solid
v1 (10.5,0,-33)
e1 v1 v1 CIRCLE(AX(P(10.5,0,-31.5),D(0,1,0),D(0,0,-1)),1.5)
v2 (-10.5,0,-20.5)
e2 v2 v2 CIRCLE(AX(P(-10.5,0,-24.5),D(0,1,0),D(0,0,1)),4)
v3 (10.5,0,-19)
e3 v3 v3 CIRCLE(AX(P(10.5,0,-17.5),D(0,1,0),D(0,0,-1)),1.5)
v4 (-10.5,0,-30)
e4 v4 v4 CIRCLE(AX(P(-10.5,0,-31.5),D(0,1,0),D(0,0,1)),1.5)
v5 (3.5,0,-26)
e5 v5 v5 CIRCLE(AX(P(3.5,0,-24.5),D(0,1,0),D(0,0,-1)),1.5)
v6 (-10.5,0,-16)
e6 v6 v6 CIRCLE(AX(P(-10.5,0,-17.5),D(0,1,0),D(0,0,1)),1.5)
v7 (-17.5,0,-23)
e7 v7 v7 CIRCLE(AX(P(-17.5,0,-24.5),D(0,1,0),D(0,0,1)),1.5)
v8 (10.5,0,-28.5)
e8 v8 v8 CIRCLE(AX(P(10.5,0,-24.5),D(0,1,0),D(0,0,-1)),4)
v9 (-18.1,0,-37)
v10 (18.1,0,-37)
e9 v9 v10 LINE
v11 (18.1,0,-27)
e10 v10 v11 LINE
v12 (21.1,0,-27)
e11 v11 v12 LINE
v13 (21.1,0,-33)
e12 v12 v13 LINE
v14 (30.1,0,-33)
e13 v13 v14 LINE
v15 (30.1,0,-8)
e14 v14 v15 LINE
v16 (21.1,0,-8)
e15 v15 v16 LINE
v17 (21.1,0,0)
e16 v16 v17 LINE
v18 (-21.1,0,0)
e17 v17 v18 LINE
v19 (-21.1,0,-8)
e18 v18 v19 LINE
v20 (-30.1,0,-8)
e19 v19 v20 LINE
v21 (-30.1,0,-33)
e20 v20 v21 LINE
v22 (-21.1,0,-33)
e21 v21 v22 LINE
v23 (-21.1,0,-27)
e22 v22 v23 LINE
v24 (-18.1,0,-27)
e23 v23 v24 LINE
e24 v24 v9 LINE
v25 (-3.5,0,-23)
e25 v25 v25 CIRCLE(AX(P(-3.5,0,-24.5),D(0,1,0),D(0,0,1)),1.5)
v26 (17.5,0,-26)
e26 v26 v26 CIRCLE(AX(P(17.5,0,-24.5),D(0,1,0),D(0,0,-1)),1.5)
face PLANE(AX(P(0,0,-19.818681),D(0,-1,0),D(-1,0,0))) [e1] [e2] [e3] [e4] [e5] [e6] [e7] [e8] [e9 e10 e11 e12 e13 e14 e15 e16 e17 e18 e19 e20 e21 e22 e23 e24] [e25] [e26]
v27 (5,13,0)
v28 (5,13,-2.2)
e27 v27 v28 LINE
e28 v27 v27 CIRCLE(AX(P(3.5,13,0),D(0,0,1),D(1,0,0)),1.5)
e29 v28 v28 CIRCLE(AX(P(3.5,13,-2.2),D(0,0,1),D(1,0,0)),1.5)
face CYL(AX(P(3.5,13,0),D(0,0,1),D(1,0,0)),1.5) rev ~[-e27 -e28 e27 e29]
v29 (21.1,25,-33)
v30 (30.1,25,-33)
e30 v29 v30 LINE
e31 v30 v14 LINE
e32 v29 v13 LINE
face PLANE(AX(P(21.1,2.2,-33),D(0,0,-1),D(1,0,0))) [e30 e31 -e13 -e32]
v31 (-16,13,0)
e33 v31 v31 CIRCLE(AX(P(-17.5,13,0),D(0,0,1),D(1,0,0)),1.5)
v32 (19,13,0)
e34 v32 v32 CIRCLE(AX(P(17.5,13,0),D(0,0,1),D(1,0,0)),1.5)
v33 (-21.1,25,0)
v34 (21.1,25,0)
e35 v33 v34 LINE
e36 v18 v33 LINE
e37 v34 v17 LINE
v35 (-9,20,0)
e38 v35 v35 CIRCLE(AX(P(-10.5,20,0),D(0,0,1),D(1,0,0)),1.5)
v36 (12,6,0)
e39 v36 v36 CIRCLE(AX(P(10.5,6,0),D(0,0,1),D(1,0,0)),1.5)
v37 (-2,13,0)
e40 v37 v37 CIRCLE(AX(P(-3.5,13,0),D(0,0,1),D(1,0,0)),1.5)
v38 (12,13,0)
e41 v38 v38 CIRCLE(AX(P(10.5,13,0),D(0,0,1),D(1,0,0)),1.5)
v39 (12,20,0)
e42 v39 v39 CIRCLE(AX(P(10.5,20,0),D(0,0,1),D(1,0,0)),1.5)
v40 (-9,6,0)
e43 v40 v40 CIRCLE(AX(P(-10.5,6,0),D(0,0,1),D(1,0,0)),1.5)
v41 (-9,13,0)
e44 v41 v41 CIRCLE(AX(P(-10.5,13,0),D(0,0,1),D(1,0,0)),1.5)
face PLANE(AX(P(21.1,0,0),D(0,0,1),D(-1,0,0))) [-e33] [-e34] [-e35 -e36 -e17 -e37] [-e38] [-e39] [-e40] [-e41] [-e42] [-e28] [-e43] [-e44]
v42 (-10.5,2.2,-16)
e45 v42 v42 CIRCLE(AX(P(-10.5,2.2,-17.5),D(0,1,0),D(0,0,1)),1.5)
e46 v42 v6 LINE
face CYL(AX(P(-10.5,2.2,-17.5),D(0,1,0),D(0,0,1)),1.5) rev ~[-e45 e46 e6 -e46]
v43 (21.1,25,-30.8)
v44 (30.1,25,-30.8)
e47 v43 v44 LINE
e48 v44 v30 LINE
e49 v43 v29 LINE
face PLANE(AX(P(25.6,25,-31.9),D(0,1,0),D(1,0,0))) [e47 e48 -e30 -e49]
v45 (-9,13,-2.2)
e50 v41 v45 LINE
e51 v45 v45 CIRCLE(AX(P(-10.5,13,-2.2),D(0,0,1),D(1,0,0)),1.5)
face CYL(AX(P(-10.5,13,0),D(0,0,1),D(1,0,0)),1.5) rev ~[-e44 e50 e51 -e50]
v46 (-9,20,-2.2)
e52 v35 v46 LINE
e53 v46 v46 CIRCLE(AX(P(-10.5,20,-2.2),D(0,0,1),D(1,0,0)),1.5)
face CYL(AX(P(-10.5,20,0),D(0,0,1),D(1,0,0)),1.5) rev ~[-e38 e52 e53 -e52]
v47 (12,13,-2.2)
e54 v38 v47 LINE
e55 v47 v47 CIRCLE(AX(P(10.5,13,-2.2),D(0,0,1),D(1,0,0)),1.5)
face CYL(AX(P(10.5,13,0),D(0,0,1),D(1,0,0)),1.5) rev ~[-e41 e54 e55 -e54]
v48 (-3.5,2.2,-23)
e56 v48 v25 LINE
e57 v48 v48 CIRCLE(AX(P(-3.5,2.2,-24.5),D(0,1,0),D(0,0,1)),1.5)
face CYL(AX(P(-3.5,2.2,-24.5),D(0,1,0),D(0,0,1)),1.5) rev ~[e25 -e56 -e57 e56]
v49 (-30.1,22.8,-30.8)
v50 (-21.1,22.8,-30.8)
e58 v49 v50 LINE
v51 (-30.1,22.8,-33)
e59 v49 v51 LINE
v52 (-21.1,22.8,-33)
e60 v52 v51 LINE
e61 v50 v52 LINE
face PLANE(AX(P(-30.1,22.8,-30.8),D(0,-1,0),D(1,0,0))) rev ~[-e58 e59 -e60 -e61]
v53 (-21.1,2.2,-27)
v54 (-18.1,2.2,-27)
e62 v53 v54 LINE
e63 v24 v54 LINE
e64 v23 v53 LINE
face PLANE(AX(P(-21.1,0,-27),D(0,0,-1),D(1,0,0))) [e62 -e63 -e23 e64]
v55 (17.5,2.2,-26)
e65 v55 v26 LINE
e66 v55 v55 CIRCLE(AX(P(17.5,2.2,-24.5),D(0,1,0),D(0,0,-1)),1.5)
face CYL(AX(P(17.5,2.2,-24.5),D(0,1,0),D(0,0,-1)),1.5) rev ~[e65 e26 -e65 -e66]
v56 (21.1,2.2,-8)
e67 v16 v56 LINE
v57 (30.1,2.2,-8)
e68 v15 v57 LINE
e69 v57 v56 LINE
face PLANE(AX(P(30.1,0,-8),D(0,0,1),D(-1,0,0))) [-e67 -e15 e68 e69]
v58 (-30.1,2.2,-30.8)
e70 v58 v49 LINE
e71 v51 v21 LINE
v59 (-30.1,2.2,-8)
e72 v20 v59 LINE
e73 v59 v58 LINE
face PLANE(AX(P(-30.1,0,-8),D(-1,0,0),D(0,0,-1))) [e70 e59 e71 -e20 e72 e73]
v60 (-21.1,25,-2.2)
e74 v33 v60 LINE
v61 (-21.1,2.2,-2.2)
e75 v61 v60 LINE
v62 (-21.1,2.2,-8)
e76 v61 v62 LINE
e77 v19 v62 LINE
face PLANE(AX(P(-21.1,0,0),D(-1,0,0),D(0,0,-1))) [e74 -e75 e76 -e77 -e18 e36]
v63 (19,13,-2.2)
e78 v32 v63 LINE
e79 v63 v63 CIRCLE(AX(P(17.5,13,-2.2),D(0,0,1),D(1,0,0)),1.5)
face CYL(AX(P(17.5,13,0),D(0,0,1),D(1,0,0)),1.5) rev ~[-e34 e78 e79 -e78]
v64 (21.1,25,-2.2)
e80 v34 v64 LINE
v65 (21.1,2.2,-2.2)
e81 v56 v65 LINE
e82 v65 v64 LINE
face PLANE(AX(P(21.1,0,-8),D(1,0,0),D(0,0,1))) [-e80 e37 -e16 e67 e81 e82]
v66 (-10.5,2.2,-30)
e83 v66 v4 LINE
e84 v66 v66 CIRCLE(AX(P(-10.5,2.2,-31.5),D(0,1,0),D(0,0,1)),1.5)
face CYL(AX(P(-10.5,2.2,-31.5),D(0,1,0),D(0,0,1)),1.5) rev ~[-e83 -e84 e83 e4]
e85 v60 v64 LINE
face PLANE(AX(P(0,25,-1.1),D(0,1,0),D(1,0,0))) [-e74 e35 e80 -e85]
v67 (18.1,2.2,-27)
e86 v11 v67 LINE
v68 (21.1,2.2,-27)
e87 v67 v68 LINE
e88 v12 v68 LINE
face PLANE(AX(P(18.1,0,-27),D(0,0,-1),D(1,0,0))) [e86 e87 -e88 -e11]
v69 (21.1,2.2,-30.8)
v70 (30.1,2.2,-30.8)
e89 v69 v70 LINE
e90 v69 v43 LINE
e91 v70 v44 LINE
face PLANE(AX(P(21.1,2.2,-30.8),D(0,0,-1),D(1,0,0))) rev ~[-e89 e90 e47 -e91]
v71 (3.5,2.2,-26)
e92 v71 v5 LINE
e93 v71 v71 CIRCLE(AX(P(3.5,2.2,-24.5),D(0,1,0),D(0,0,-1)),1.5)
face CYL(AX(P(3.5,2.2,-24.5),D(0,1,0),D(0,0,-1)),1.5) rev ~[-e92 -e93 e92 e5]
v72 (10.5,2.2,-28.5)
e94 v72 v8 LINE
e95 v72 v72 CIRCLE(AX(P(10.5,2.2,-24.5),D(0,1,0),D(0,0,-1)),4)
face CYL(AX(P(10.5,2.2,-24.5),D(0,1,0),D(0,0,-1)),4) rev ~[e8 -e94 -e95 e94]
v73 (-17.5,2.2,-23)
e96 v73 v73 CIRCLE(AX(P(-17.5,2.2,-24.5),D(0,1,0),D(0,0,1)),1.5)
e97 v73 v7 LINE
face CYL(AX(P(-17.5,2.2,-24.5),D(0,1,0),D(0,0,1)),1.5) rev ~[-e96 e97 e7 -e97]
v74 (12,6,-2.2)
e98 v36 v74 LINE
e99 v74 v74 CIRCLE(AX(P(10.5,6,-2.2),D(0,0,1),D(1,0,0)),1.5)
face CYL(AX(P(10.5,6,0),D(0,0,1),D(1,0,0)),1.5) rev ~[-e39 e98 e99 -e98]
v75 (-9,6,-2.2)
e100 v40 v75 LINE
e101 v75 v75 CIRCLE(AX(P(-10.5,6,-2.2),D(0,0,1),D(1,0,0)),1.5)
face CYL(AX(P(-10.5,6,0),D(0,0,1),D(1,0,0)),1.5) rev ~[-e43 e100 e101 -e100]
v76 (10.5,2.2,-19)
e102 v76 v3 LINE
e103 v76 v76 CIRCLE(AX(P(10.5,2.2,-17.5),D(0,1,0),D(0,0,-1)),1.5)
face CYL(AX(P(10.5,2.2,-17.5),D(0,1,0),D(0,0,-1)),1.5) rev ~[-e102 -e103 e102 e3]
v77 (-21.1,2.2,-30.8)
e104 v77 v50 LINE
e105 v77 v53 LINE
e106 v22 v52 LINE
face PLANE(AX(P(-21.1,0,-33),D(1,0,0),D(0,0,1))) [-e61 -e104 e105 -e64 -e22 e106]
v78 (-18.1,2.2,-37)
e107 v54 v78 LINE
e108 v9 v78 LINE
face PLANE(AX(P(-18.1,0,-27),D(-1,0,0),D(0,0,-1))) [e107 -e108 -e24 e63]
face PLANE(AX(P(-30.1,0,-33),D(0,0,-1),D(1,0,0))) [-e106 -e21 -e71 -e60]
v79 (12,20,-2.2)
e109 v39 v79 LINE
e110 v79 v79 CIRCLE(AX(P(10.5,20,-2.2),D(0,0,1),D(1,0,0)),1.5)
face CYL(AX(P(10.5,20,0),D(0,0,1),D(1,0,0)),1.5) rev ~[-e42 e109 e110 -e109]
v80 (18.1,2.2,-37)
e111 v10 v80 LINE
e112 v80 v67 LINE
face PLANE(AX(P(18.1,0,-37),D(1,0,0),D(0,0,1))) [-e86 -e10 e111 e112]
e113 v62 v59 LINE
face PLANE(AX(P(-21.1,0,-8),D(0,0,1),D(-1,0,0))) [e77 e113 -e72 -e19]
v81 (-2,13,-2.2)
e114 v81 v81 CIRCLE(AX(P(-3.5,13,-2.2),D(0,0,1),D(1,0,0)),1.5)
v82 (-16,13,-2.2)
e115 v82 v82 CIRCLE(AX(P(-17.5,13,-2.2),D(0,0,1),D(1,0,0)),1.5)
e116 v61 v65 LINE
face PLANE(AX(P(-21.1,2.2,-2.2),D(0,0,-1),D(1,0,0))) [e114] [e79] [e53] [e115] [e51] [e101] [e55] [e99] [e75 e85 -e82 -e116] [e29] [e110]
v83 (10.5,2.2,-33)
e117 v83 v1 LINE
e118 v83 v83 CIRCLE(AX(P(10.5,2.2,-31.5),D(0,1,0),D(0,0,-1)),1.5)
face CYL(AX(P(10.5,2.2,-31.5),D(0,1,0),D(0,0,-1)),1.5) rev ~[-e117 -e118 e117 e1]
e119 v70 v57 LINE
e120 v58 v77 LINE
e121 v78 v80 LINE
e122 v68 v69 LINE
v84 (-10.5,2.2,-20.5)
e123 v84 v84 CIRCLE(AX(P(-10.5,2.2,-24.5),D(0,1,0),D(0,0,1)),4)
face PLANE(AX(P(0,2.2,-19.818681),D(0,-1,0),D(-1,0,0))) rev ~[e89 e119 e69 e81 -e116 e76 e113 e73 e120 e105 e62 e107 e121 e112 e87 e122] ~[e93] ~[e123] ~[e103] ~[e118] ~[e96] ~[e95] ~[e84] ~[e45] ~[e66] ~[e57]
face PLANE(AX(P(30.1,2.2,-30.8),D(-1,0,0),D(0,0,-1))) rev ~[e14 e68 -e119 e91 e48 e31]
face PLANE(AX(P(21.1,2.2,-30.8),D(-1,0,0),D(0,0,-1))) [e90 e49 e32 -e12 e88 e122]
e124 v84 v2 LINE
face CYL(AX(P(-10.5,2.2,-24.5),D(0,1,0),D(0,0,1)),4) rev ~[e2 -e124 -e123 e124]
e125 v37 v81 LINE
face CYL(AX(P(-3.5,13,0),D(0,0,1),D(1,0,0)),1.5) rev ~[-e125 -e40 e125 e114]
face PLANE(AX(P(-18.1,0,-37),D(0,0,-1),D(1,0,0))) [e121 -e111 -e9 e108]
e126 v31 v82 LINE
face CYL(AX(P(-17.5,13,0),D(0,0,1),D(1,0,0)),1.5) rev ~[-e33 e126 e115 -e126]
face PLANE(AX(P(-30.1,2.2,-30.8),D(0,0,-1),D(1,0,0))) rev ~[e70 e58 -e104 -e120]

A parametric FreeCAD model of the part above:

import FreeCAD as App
import Part
import Sketcher

V = App.Vector
Q = App.Units.Quantity

doc = App.newDocument("Part")
body = doc.addObject("PartDesign::Body", "Body")

# Sketch on XZ plane
sketch1 = body.newObject("Sketcher::SketchObject", "Sketch")
sketch1.AttachmentSupport = (doc.getObject("XZ_Plane"), [""])
sketch1.MapMode = "FlatFace"
sketch1.addGeometry([
    Part.LineSegment(V(-21.1, 0, 0), V(21.1, 0, 0)),  # 0
    Part.LineSegment(V(21.1, 0, 0), V(21.1, -8, 0)),  # 1
    Part.LineSegment(V(21.1, -8, 0), V(30.1, -8, 0)),  # 2
    Part.LineSegment(V(30.1, -8, 0), V(30.1, -33, 0)),  # 3
    Part.LineSegment(V(30.1, -33, 0), V(21.1, -33, 0)),  # 4
    Part.LineSegment(V(21.1, -33, 0), V(21.1, -27, 0)),  # 5
    Part.LineSegment(V(21.1, -27, 0), V(18.1, -27, 0)),  # 6
    Part.LineSegment(V(18.1, -27, 0), V(18.1, -37, 0)),  # 7
    Part.LineSegment(V(18.1, -37, 0), V(-18.1, -37, 0)),  # 8
    Part.LineSegment(V(-18.1, -37, 0), V(-18.1, -27, 0)),  # 9
    Part.LineSegment(V(-18.1, -27, 0), V(-21.1, -27, 0)),  # 10
    Part.LineSegment(V(-21.1, -27, 0), V(-21.1, -33, 0)),  # 11
    Part.LineSegment(V(-21.1, -33, 0), V(-30.1, -33, 0)),  # 12
    Part.LineSegment(V(-30.1, -33, 0), V(-30.1, -8, 0)),  # 13
    Part.LineSegment(V(-30.1, -8, 0), V(-21.1, -8, 0)),  # 14
    Part.LineSegment(V(-21.1, -8, 0), V(-21.1, 0, 0)),  # 15
], False)
sketch1.addConstraint([
    Sketcher.Constraint("Coincident", 0, 2, 1, 1),
    Sketcher.Constraint("Coincident", 1, 2, 2, 1),
    Sketcher.Constraint("Coincident", 2, 2, 3, 1),
    Sketcher.Constraint("Coincident", 3, 2, 4, 1),
    Sketcher.Constraint("Coincident", 4, 2, 5, 1),
    Sketcher.Constraint("Coincident", 5, 2, 6, 1),
    Sketcher.Constraint("Coincident", 6, 2, 7, 1),
    Sketcher.Constraint("Coincident", 7, 2, 8, 1),
    Sketcher.Constraint("Coincident", 8, 2, 9, 1),
    Sketcher.Constraint("Coincident", 9, 2, 10, 1),
    Sketcher.Constraint("Coincident", 10, 2, 11, 1),
    Sketcher.Constraint("Coincident", 11, 2, 12, 1),
    Sketcher.Constraint("Coincident", 12, 2, 13, 1),
    Sketcher.Constraint("Coincident", 13, 2, 14, 1),
    Sketcher.Constraint("Coincident", 14, 2, 15, 1),
    Sketcher.Constraint("Coincident", 15, 2, 0, 1),
    Sketcher.Constraint("Horizontal", 0),
    Sketcher.Constraint("Vertical", 1),
    Sketcher.Constraint("Horizontal", 2),
    Sketcher.Constraint("Vertical", 3),
    Sketcher.Constraint("Horizontal", 4),
    Sketcher.Constraint("Vertical", 5),
    Sketcher.Constraint("Horizontal", 6),
    Sketcher.Constraint("Vertical", 7),
    Sketcher.Constraint("Horizontal", 8),
    Sketcher.Constraint("Vertical", 9),
    Sketcher.Constraint("Horizontal", 10),
    Sketcher.Constraint("Vertical", 11),
    Sketcher.Constraint("Horizontal", 12),
    Sketcher.Constraint("Vertical", 13),
    Sketcher.Constraint("Horizontal", 14),
    Sketcher.Constraint("Vertical", 15),
    Sketcher.Constraint("Symmetric", 0, 2, 15, 2, -1, 1),
    Sketcher.Constraint("Symmetric", 6, 2, 9, 2, -2),
    Sketcher.Constraint("Symmetric", 4, 2, 11, 2, -2),
    Sketcher.Constraint("Symmetric", 2, 2, 13, 2, -2),
    Sketcher.Constraint("Vertical", 1, 2, 4, 2),
    Sketcher.Constraint("DistanceX", 2, 1, 2, 2, Q("9 mm")),
    Sketcher.Constraint("DistanceX", 6, 2, 6, 1, Q("3 mm")),
    Sketcher.Constraint("DistanceY", 1, 2, 1, 1, Q("8 mm")),
    Sketcher.Constraint("DistanceY", 3, 2, 3, 1, Q("25 mm")),
    Sketcher.Constraint("DistanceY", 5, 1, 5, 2, Q("6 mm")),
    Sketcher.Constraint("DistanceY", 7, 2, 7, 1, Q("10 mm")),
    Sketcher.Constraint("DistanceX", 0, 1, 0, 2, Q("42.2 mm")),
])
pad1 = body.newObject("PartDesign::Pad", "Pad")
pad1.Profile = sketch1
pad1.Length = 2.2
pad1.Reversed = True

# Sketch on XZ plane
sketch2 = body.newObject("Sketcher::SketchObject", "Sketch001")
sketch2.AttachmentSupport = (doc.getObject("XZ_Plane"), [""])
sketch2.MapMode = "FlatFace"
sketch2.AttachmentOffset = App.Placement(V(0, 0, -2.2), App.Rotation())
sketch2.addGeometry([
    Part.LineSegment(V(21.1, -33, 0), V(21.1, -30.8, 0)),  # 0
    Part.LineSegment(V(21.1, -30.8, 0), V(30.1, -30.8, 0)),  # 1
    Part.LineSegment(V(30.1, -30.8, 0), V(30.1, -33, 0)),  # 2
    Part.LineSegment(V(30.1, -33, 0), V(21.1, -33, 0)),  # 3
    Part.LineSegment(V(-30.1, -33, 0), V(-30.1, -30.8, 0)),  # 4
    Part.LineSegment(V(-30.1, -30.8, 0), V(-21.1, -30.8, 0)),  # 5
    Part.LineSegment(V(-21.1, -30.8, 0), V(-21.1, -33, 0)),  # 6
    Part.LineSegment(V(-21.1, -33, 0), V(-30.1, -33, 0)),  # 7
    Part.LineSegment(V(-21.1, -2.2, 0), V(-21.1, 0, 0)),  # 8
    Part.LineSegment(V(-21.1, 0, 0), V(21.1, 0, 0)),  # 9
    Part.LineSegment(V(21.1, 0, 0), V(21.1, -2.2, 0)),  # 10
    Part.LineSegment(V(21.1, -2.2, 0), V(-21.1, -2.2, 0)),  # 11
], False)
sketch2.addConstraint([
    Sketcher.Constraint("Coincident", 0, 2, 1, 1),
    Sketcher.Constraint("Coincident", 1, 2, 2, 1),
    Sketcher.Constraint("Coincident", 2, 2, 3, 1),
    Sketcher.Constraint("Coincident", 3, 2, 0, 1),
    Sketcher.Constraint("Coincident", 4, 2, 5, 1),
    Sketcher.Constraint("Coincident", 5, 2, 6, 1),
    Sketcher.Constraint("Coincident", 6, 2, 7, 1),
    Sketcher.Constraint("Coincident", 7, 2, 4, 1),
    Sketcher.Constraint("Coincident", 8, 2, 9, 1),
    Sketcher.Constraint("Coincident", 9, 2, 10, 1),
    Sketcher.Constraint("Coincident", 10, 2, 11, 1),
    Sketcher.Constraint("Coincident", 11, 2, 8, 1),
    Sketcher.Constraint("Vertical", 0),
    Sketcher.Constraint("Horizontal", 1),
    Sketcher.Constraint("Vertical", 2),
    Sketcher.Constraint("Horizontal", 3),
    Sketcher.Constraint("Vertical", 4),
    Sketcher.Constraint("Horizontal", 5),
    Sketcher.Constraint("Vertical", 6),
    Sketcher.Constraint("Horizontal", 7),
    Sketcher.Constraint("Vertical", 8),
    Sketcher.Constraint("Horizontal", 9),
    Sketcher.Constraint("Vertical", 10),
    Sketcher.Constraint("Horizontal", 11),
    Sketcher.Constraint("Symmetric", 8, 2, 9, 2, -1, 1),
    Sketcher.Constraint("Symmetric", 1, 2, 4, 2, -2),
    Sketcher.Constraint("Symmetric", 3, 2, 6, 2, -2),
    Sketcher.Constraint("Vertical", 6, 2, 8, 2),
    Sketcher.Constraint("Equal", 6, 8),
    Sketcher.Constraint("DistanceX", 1, 1, 1, 2, Q("9 mm")),
    Sketcher.Constraint("DistanceX", 9, 1, 9, 2, Q("42.2 mm")),
    Sketcher.Constraint("DistanceY", 0, 1, 0, 2, Q("2.2 mm")),
    Sketcher.Constraint("DistanceY", 2, 2, -1, 1, Q("33 mm")),
])
pad2 = body.newObject("PartDesign::Pad", "Pad001")
pad2.Profile = sketch2
pad2.Length = 22.8
pad2.Reversed = True

# Sketch on XY plane
sketch3 = body.newObject("Sketcher::SketchObject", "Sketch002")
sketch3.AttachmentSupport = (doc.getObject("XY_Plane"), [""])
sketch3.MapMode = "FlatFace"
sketch3.AttachmentOffset = App.Placement(V(0, 0, -30.8), App.Rotation())
sketch3.addGeometry([
    Part.LineSegment(V(-30.1, 25, 0), V(-30.1, 22.8, 0)),
    Part.LineSegment(V(-30.1, 22.8, 0), V(-21.1, 22.8, 0)),
    Part.LineSegment(V(-21.1, 22.8, 0), V(-21.1, 25, 0)),
    Part.LineSegment(V(-21.1, 25, 0), V(-30.1, 25, 0)),
], False)
sketch3.addConstraint([
    Sketcher.Constraint("Coincident", 0, 2, 1, 1),
    Sketcher.Constraint("Coincident", 1, 2, 2, 1),
    Sketcher.Constraint("Coincident", 2, 2, 3, 1),
    Sketcher.Constraint("Coincident", 3, 2, 0, 1),
    Sketcher.Constraint("Vertical", 0),
    Sketcher.Constraint("Horizontal", 1),
    Sketcher.Constraint("Vertical", 2),
    Sketcher.Constraint("Horizontal", 3),
    Sketcher.Constraint("DistanceX", 1, 1, 1, 2, Q("9 mm")),
    Sketcher.Constraint("DistanceY", 0, 2, 0, 1, Q("2.2 mm")),
    Sketcher.Constraint("DistanceY", -1, 1, 2, 2, Q("25 mm")),
    Sketcher.Constraint("DistanceX", 0, 2, -1, 1, Q("30.1 mm")),
])
pocket1 = body.newObject("PartDesign::Pocket", "Pocket")
pocket1.Profile = sketch3
pocket1.Type = "ThroughAll"

# Sketch on XY plane
sketch4 = body.newObject("Sketcher::SketchObject", "Sketch003")
sketch4.AttachmentSupport = (doc.getObject("XY_Plane"), [""])
sketch4.MapMode = "FlatFace"
sketch4.addGeometry([
    Part.Circle(V(-17.5, 13, 0), V(0, 0, 1), 1.5),  # 0
    Part.Circle(V(-10.5, 13, 0), V(0, 0, 1), 1.5),  # 1
    Part.Circle(V(-10.5, 20, 0), V(0, 0, 1), 1.5),  # 2
    Part.Circle(V(-3.5, 13, 0), V(0, 0, 1), 1.5),  # 3
    Part.Circle(V(-10.5, 6, 0), V(0, 0, 1), 1.5),  # 4
    Part.Circle(V(10.5, 6, 0), V(0, 0, 1), 1.5),  # 5
    Part.Circle(V(3.5, 13, 0), V(0, 0, 1), 1.5),  # 6
    Part.Circle(V(10.5, 20, 0), V(0, 0, 1), 1.5),  # 7
    Part.Circle(V(10.5, 13, 0), V(0, 0, 1), 1.5),  # 8
    Part.Circle(V(17.5, 13, 0), V(0, 0, 1), 1.5),  # 9
], False)
sketch4.addConstraint([
    Sketcher.Constraint("Equal", 0, 1),
    Sketcher.Constraint("Equal", 1, 2),
    Sketcher.Constraint("Equal", 2, 3),
    Sketcher.Constraint("Equal", 3, 4),
    Sketcher.Constraint("Equal", 4, 5),
    Sketcher.Constraint("Equal", 5, 6),
    Sketcher.Constraint("Equal", 6, 7),
    Sketcher.Constraint("Equal", 7, 8),
    Sketcher.Constraint("Equal", 8, 9),
    Sketcher.Constraint("Symmetric", 4, 3, 5, 3, -2),
    Sketcher.Constraint("Symmetric", 3, 3, 6, 3, -2),
    Sketcher.Constraint("Symmetric", 2, 3, 7, 3, -2),
    Sketcher.Constraint("Symmetric", 1, 3, 8, 3, -2),
    Sketcher.Constraint("Symmetric", 0, 3, 9, 3, -2),
    Sketcher.Constraint("Horizontal", 0, 3, 1, 3),
    Sketcher.Constraint("Horizontal", 1, 3, 3, 3),
    Sketcher.Constraint("Vertical", 1, 3, 2, 3),
    Sketcher.Constraint("Vertical", 2, 3, 4, 3),
    Sketcher.Constraint("Diameter", 0, Q("3 mm")),
    Sketcher.Constraint("DistanceY", -1, 1, 0, 3, Q("13 mm")),
    Sketcher.Constraint("DistanceY", -1, 1, 2, 3, Q("20 mm")),
    Sketcher.Constraint("DistanceY", -1, 1, 4, 3, Q("6 mm")),
    Sketcher.Constraint("DistanceX", 0, 3, 1, 3, Q("7 mm")),
    Sketcher.Constraint("DistanceX", 1, 3, 3, 3, Q("7 mm")),
    Sketcher.Constraint("DistanceX", 3, 3, 5, 3, Q("14 mm")),
])
pocket2 = body.newObject("PartDesign::Pocket", "Pocket001")
pocket2.Profile = sketch4
pocket2.Type = "ThroughAll"

# Sketch on XZ plane
sketch5 = body.newObject("Sketcher::SketchObject", "Sketch004")
sketch5.AttachmentSupport = (doc.getObject("XZ_Plane"), [""])
sketch5.MapMode = "FlatFace"
sketch5.AttachmentOffset = App.Placement(V(0, 0, -2.2), App.Rotation())
sketch5.addGeometry([
    Part.Circle(V(-10.5, -24.5, 0), V(0, 0, 1), 4),  # 0
    Part.Circle(V(-17.5, -24.5, 0), V(0, 0, 1), 1.5),  # 1
    Part.Circle(V(-10.5, -31.5, 0), V(0, 0, 1), 1.5),  # 2
    Part.Circle(V(-3.5, -24.5, 0), V(0, 0, 1), 1.5),  # 3
    Part.Circle(V(-10.5, -17.5, 0), V(0, 0, 1), 1.5),  # 4
    Part.Circle(V(10.5, -17.5, 0), V(0, 0, 1), 1.5),  # 5
    Part.Circle(V(3.5, -24.5, 0), V(0, 0, 1), 1.5),  # 6
    Part.Circle(V(10.5, -31.5, 0), V(0, 0, 1), 1.5),  # 7
    Part.Circle(V(17.5, -24.5, 0), V(0, 0, 1), 1.5),  # 8
    Part.Circle(V(10.5, -24.5, 0), V(0, 0, 1), 4),  # 9
], False)
sketch5.addConstraint([
    Sketcher.Constraint("Equal", 1, 2),
    Sketcher.Constraint("Equal", 2, 3),
    Sketcher.Constraint("Equal", 3, 4),
    Sketcher.Constraint("Equal", 4, 5),
    Sketcher.Constraint("Equal", 5, 6),
    Sketcher.Constraint("Equal", 6, 7),
    Sketcher.Constraint("Equal", 7, 8),
    Sketcher.Constraint("Equal", 0, 9),
    Sketcher.Constraint("Symmetric", 4, 3, 5, 3, -2),
    Sketcher.Constraint("Symmetric", 3, 3, 6, 3, -2),
    Sketcher.Constraint("Symmetric", 2, 3, 7, 3, -2),
    Sketcher.Constraint("Symmetric", 1, 3, 8, 3, -2),
    Sketcher.Constraint("Symmetric", 0, 3, 9, 3, -2),
    Sketcher.Constraint("Horizontal", 0, 3, 1, 3),
    Sketcher.Constraint("Horizontal", 1, 3, 3, 3),
    Sketcher.Constraint("Vertical", 0, 3, 2, 3),
    Sketcher.Constraint("Vertical", 2, 3, 4, 3),
    Sketcher.Constraint("Diameter", 0, Q("8 mm")),
    Sketcher.Constraint("Diameter", 1, Q("3 mm")),
    Sketcher.Constraint("DistanceX", 1, 3, 0, 3, Q("7 mm")),
    Sketcher.Constraint("DistanceY", 2, 3, 0, 3, Q("7 mm")),
    Sketcher.Constraint("DistanceX", 0, 3, 3, 3, Q("7 mm")),
    Sketcher.Constraint("DistanceY", 0, 3, 4, 3, Q("7 mm")),
    Sketcher.Constraint("DistanceX", 3, 3, 5, 3, Q("14 mm")),
    Sketcher.Constraint("DistanceY", 0, 3, -1, 1, Q("24.5 mm")),
])
pocket3 = body.newObject("PartDesign::Pocket", "Pocket002")
pocket3.Profile = sketch5
pocket3.Type = "ThroughAll"
pocket3.Reversed = True

doc.recompute()
